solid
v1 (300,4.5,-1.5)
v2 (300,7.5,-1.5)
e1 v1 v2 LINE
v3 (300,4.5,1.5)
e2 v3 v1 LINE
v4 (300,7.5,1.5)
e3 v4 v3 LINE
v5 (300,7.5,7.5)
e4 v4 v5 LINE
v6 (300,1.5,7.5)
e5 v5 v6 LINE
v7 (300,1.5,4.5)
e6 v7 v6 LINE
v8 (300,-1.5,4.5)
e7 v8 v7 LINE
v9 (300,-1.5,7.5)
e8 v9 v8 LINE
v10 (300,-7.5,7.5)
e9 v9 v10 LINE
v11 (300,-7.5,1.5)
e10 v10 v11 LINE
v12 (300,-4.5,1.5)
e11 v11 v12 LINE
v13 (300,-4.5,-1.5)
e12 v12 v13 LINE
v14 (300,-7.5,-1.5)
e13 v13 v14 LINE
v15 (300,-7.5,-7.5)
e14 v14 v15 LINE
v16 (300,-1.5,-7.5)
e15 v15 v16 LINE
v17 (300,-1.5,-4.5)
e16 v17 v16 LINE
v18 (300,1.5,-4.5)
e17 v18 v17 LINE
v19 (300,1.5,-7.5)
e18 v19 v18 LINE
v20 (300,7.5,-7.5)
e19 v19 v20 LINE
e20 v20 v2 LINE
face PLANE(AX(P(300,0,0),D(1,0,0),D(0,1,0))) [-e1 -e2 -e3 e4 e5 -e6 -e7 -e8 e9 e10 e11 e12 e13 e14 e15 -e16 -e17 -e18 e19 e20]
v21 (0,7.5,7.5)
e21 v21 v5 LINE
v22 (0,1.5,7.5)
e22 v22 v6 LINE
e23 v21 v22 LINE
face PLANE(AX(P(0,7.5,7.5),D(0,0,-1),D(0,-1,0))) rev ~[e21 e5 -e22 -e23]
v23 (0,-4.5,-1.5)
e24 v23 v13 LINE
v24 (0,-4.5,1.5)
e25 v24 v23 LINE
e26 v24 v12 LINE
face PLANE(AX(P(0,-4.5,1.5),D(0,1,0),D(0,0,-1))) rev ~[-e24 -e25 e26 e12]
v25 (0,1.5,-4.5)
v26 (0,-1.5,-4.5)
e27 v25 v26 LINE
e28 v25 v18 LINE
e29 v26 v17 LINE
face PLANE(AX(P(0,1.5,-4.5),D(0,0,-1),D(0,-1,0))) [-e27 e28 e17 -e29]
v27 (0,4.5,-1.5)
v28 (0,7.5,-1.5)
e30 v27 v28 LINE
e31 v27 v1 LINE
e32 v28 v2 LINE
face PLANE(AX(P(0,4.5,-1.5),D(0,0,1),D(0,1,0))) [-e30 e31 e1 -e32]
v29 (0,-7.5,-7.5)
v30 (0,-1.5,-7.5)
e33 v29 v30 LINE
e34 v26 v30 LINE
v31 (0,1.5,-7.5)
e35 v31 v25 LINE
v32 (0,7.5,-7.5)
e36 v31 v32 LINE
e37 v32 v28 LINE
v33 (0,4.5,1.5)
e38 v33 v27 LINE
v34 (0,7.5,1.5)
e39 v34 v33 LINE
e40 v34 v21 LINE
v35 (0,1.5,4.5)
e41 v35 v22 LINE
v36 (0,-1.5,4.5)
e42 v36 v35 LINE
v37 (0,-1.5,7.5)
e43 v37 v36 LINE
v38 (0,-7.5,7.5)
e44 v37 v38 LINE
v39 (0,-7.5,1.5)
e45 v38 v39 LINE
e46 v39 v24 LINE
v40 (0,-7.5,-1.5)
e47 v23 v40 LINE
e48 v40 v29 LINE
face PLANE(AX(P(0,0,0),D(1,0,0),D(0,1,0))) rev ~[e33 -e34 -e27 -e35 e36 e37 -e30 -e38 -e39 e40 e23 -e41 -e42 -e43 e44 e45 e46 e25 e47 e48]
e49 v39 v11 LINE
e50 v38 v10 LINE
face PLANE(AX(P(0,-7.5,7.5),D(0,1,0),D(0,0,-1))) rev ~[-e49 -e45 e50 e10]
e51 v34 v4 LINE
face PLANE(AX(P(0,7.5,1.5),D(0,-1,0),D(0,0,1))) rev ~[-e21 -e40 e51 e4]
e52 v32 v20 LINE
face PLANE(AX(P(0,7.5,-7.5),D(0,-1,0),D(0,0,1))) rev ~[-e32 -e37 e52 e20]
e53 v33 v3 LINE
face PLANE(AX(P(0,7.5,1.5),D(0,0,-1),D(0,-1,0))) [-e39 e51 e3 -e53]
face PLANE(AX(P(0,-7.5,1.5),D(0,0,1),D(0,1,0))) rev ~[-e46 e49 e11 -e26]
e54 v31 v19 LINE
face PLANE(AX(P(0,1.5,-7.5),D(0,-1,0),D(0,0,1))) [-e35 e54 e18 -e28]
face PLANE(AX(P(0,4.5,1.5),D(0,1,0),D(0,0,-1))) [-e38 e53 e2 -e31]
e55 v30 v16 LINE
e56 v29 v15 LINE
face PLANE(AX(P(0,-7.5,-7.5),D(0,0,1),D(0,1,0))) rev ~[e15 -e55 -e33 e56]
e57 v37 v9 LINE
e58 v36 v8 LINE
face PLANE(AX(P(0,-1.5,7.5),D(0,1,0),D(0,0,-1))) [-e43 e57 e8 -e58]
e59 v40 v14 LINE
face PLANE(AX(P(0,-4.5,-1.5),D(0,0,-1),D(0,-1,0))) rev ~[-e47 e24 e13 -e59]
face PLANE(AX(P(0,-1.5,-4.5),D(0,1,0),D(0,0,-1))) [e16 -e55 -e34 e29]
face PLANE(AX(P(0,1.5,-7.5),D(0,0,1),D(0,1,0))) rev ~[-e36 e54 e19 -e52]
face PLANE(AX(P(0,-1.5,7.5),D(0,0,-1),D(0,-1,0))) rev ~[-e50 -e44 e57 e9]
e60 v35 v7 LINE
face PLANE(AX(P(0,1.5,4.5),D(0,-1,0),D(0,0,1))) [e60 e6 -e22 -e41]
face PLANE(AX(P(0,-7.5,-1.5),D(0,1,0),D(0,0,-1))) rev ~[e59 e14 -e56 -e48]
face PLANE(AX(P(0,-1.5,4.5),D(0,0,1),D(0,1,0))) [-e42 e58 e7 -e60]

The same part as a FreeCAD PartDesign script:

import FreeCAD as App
import Part
import Sketcher
from FreeCAD import Vector
Q = App.Units.Quantity

doc = App.newDocument("Part")
body = doc.addObject("PartDesign::Body", "Body")

# Sketch on YZ plane
sketch1 = doc.addObject("Sketcher::SketchObject", "Sketch")
body.addObject(sketch1)
sketch1.AttachmentSupport = (doc.YZ_Plane, [""])
sketch1.MapMode = "FlatFace"
sketch1.addGeometry(Part.LineSegment(Vector(-7.5, -1.5, 0), Vector(-7.5, -7.5, 0)), False)
sketch1.addGeometry(Part.LineSegment(Vector(-7.5, -7.5, 0), Vector(-1.5, -7.5, 0)), False)
sketch1.addGeometry(Part.LineSegment(Vector(-1.5, -7.5, 0), Vector(-1.5, -4.5, 0)), False)
sketch1.addGeometry(Part.LineSegment(Vector(-1.5, -4.5, 0), Vector(1.5, -4.5, 0)), False)
sketch1.addGeometry(Part.LineSegment(Vector(1.5, -4.5, 0), Vector(1.5, -7.5, 0)), False)
sketch1.addGeometry(Part.LineSegment(Vector(1.5, -7.5, 0), Vector(7.5, -7.5, 0)), False)
sketch1.addGeometry(Part.LineSegment(Vector(7.5, -7.5, 0), Vector(7.5, -1.5, 0)), False)
sketch1.addGeometry(Part.LineSegment(Vector(7.5, -1.5, 0), Vector(4.5, -1.5, 0)), False)
sketch1.addGeometry(Part.LineSegment(Vector(4.5, -1.5, 0), Vector(4.5, 1.5, 0)), False)
sketch1.addGeometry(Part.LineSegment(Vector(4.5, 1.5, 0), Vector(7.5, 1.5, 0)), False)
sketch1.addGeometry(Part.LineSegment(Vector(7.5, 1.5, 0), Vector(7.5, 7.5, 0)), False)
sketch1.addGeometry(Part.LineSegment(Vector(7.5, 7.5, 0), Vector(1.5, 7.5, 0)), False)
sketch1.addGeometry(Part.LineSegment(Vector(1.5, 7.5, 0), Vector(1.5, 4.5, 0)), False)
sketch1.addGeometry(Part.LineSegment(Vector(1.5, 4.5, 0), Vector(-1.5, 4.5, 0)), False)
sketch1.addGeometry(Part.LineSegment(Vector(-1.5, 4.5, 0), Vector(-1.5, 7.5, 0)), False)
sketch1.addGeometry(Part.LineSegment(Vector(-1.5, 7.5, 0), Vector(-7.5, 7.5, 0)), False)
sketch1.addGeometry(Part.LineSegment(Vector(-7.5, 7.5, 0), Vector(-7.5, 1.5, 0)), False)
sketch1.addGeometry(Part.LineSegment(Vector(-7.5, 1.5, 0), Vector(-4.5, 1.5, 0)), False)
sketch1.addGeometry(Part.LineSegment(Vector(-4.5, 1.5, 0), Vector(-4.5, -1.5, 0)), False)
sketch1.addGeometry(Part.LineSegment(Vector(-4.5, -1.5, 0), Vector(-7.5, -1.5, 0)), False)
sketch1.addConstraint(Sketcher.Constraint("Coincident", 0, 2, 1, 1))
sketch1.addConstraint(Sketcher.Constraint("Coincident", 1, 2, 2, 1))
sketch1.addConstraint(Sketcher.Constraint("Coincident", 2, 2, 3, 1))
sketch1.addConstraint(Sketcher.Constraint("Coincident", 3, 2, 4, 1))
sketch1.addConstraint(Sketcher.Constraint("Coincident", 4, 2, 5, 1))
sketch1.addConstraint(Sketcher.Constraint("Coincident", 5, 2, 6, 1))
sketch1.addConstraint(Sketcher.Constraint("Coincident", 6, 2, 7, 1))
sketch1.addConstraint(Sketcher.Constraint("Coincident", 7, 2, 8, 1))
sketch1.addConstraint(Sketcher.Constraint("Coincident", 8, 2, 9, 1))
sketch1.addConstraint(Sketcher.Constraint("Coincident", 9, 2, 10, 1))
sketch1.addConstraint(Sketcher.Constraint("Coincident", 10, 2, 11, 1))
sketch1.addConstraint(Sketcher.Constraint("Coincident", 11, 2, 12, 1))
sketch1.addConstraint(Sketcher.Constraint("Coincident", 12, 2, 13, 1))
sketch1.addConstraint(Sketcher.Constraint("Coincident", 13, 2, 14, 1))
sketch1.addConstraint(Sketcher.Constraint("Coincident", 14, 2, 15, 1))
sketch1.addConstraint(Sketcher.Constraint("Coincident", 15, 2, 16, 1))
sketch1.addConstraint(Sketcher.Constraint("Coincident", 16, 2, 17, 1))
sketch1.addConstraint(Sketcher.Constraint("Coincident", 17, 2, 18, 1))
sketch1.addConstraint(Sketcher.Constraint("Coincident", 18, 2, 19, 1))
sketch1.addConstraint(Sketcher.Constraint("Coincident", 19, 2, 0, 1))
sketch1.addConstraint(Sketcher.Constraint("Vertical", 0))
sketch1.addConstraint(Sketcher.Constraint("Horizontal", 1))
sketch1.addConstraint(Sketcher.Constraint("Vertical", 2))
sketch1.addConstraint(Sketcher.Constraint("Horizontal", 3))
sketch1.addConstraint(Sketcher.Constraint("Vertical", 4))
sketch1.addConstraint(Sketcher.Constraint("Horizontal", 5))
sketch1.addConstraint(Sketcher.Constraint("Vertical", 6))
sketch1.addConstraint(Sketcher.Constraint("Horizontal", 7))
sketch1.addConstraint(Sketcher.Constraint("Vertical", 8))
sketch1.addConstraint(Sketcher.Constraint("Horizontal", 9))
sketch1.addConstraint(Sketcher.Constraint("Vertical", 10))
sketch1.addConstraint(Sketcher.Constraint("Horizontal", 11))
sketch1.addConstraint(Sketcher.Constraint("Vertical", 12))
sketch1.addConstraint(Sketcher.Constraint("Horizontal", 13))
sketch1.addConstraint(Sketcher.Constraint("Vertical", 14))
sketch1.addConstraint(Sketcher.Constraint("Horizontal", 15))
sketch1.addConstraint(Sketcher.Constraint("Vertical", 16))
sketch1.addConstraint(Sketcher.Constraint("Horizontal", 17))
sketch1.addConstraint(Sketcher.Constraint("Vertical", 18))
sketch1.addConstraint(Sketcher.Constraint("Horizontal", 19))
sketch1.addConstraint(Sketcher.Constraint("Symmetric", 0, 2, 10, 2, -1, 1))
sketch1.addConstraint(Sketcher.Constraint("Symmetric", 2, 2, 12, 2, -1, 1))
sketch1.addConstraint(Sketcher.Constraint("Symmetric", 4, 2, 14, 2, -1, 1))
sketch1.addConstraint(Sketcher.Constraint("Symmetric", 6, 2, 16, 2, -1, 1))
sketch1.addConstraint(Sketcher.Constraint("Symmetric", 8, 2, 18, 2, -1, 1))
sketch1.addConstraint(Sketcher.Constraint("Symmetric", 1, 2, 4, 2, -2))
sketch1.addConstraint(Sketcher.Constraint("Symmetric", 9, 2, 16, 2, -2))
sketch1.addConstraint(Sketcher.Constraint("Equal", 3, 7))
sketch1.addConstraint(Sketcher.Constraint("Equal", 15, 0))
sketch1.addConstraint(Sketcher.Constraint("Equal", 19, 2))
sketch1.addConstraint(Sketcher.Constraint("Equal", 4, 8))
sketch1.addConstraint(Sketcher.Constraint("DistanceX", 3, 1, 3, 2, Q("3 mm")))
sketch1.addConstraint(Sketcher.Constraint("DistanceX", 0, 2, 5, 2, Q("15 mm")))
pad1 = doc.addObject("PartDesign::Pad", "Pad")
body.addObject(pad1)
pad1.Profile = sketch1
pad1.Length = 300

doc.recompute()
